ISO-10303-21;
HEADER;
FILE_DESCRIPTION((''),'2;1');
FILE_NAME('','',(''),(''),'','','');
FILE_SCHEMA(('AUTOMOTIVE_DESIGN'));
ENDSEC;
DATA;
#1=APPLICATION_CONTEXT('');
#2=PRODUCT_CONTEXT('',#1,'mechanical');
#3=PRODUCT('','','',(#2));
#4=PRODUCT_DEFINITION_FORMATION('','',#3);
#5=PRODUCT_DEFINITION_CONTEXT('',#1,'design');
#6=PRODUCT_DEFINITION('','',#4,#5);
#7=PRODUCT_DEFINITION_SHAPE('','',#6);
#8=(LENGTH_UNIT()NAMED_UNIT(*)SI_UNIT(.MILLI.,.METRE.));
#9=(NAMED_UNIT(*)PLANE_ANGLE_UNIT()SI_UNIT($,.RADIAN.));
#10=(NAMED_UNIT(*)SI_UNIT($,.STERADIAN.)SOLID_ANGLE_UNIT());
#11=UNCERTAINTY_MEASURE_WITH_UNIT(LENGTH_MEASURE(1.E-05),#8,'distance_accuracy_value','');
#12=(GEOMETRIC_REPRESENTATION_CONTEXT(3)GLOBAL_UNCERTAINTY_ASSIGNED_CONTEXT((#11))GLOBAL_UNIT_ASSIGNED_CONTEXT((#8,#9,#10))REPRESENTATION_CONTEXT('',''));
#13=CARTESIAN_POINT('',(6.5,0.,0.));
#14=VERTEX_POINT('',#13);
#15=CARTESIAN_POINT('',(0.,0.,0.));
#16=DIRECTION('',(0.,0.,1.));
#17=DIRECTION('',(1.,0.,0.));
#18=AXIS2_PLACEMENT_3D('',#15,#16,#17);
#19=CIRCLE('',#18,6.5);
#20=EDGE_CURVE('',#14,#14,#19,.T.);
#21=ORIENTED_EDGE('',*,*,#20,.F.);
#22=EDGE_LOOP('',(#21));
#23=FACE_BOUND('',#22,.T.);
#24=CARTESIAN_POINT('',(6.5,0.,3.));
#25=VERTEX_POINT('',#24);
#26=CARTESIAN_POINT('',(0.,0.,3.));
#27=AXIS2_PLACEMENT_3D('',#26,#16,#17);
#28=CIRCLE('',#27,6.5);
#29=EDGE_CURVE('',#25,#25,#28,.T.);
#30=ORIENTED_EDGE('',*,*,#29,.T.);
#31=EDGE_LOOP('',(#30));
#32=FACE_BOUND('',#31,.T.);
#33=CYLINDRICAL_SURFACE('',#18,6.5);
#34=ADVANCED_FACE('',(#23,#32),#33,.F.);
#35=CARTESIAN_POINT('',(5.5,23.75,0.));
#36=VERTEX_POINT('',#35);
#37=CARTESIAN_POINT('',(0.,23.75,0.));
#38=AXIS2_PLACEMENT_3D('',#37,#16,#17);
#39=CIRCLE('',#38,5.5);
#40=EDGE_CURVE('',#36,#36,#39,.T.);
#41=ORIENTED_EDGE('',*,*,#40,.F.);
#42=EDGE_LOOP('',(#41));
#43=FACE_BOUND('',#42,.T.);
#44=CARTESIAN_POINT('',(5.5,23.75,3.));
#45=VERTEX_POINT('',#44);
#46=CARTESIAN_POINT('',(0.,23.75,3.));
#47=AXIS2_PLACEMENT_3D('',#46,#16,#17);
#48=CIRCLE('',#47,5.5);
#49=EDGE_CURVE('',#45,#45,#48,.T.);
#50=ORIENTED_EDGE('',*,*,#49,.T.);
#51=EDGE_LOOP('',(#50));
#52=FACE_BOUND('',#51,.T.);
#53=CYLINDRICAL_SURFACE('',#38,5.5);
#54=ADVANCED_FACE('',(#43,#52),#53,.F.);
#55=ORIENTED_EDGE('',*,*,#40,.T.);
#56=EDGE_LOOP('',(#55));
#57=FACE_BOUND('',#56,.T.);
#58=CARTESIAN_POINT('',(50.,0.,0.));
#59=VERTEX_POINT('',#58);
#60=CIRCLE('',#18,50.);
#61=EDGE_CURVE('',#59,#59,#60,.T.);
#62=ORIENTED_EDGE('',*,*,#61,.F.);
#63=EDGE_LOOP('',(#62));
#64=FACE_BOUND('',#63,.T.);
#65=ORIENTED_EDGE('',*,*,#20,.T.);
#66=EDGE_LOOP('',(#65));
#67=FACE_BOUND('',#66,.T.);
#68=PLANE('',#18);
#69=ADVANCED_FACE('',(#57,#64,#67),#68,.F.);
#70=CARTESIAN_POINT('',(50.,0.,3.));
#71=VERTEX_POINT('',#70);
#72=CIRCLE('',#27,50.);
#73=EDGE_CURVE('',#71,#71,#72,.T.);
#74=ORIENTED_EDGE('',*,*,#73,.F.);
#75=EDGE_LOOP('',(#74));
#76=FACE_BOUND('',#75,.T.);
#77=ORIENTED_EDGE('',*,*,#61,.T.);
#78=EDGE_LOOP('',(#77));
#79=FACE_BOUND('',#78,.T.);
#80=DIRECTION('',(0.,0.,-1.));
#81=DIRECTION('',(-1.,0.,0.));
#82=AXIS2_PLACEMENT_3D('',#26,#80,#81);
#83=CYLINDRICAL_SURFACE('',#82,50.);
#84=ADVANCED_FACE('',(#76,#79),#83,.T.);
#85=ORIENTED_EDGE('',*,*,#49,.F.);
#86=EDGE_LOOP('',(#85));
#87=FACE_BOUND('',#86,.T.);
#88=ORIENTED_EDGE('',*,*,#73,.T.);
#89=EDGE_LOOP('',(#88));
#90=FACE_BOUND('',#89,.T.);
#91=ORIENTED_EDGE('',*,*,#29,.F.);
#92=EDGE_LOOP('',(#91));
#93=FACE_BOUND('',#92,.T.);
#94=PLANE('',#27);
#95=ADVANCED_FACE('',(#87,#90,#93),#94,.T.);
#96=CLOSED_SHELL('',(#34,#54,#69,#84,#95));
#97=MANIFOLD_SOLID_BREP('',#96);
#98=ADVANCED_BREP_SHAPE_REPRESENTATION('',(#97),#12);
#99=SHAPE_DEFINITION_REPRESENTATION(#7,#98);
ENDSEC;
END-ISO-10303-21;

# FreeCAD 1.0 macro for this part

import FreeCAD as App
import Part
import Sketcher
from FreeCAD import Vector
Q = App.Units.Quantity

doc = App.newDocument("Part")
body = doc.addObject("PartDesign::Body", "Body")

# Sketch on XY plane
sketch1 = body.newObject("Sketcher::SketchObject", "Sketch")
sketch1.AttachmentSupport = (doc.getObject("XY_Plane"), [""])
sketch1.MapMode = "FlatFace"
sketch1.addGeometry(Part.Circle(Vector(0, 0, 0), Vector(0, 0, 1), 50), False)
sketch1.addConstraint([
    Sketcher.Constraint("Coincident", 0, 3, -1, 1),
    Sketcher.Constraint("Diameter", 0, Q("100 mm")),
])
pad1 = body.newObject("PartDesign::Pad", "Pad")
pad1.Profile = sketch1
pad1.Length = 3

# Sketch on XY plane
sketch2 = body.newObject("Sketcher::SketchObject", "Sketch001")
sketch2.AttachmentSupport = (doc.getObject("XY_Plane"), [""])
sketch2.MapMode = "FlatFace"
sketch2.AttachmentOffset = App.Placement(Vector(0, 0, 3), App.Rotation())
sketch2.addGeometry([
    Part.Circle(Vector(0, 0, 0), Vector(0, 0, 1), 6),
    Part.Circle(Vector(0, 24, 0), Vector(0, 0, 1), 6),
], False)
sketch2.addConstraint([
    Sketcher.Constraint("Coincident", 0, 3, -1, 1),
    Sketcher.Constraint("PointOnObject", 1, 3, -2),
    Sketcher.Constraint("Diameter", 0, Q("13 mm")),
    Sketcher.Constraint("Diameter", 1, Q("11 mm")),
    Sketcher.Constraint("DistanceY", -1, 1, 1, 3, Q("23.75 mm")),
])
pocket1 = body.newObject("PartDesign::Pocket", "Pocket")
pocket1.Profile = sketch2
pocket1.Type = "ThroughAll"
pocket1.Midplane = True

doc.recompute()
